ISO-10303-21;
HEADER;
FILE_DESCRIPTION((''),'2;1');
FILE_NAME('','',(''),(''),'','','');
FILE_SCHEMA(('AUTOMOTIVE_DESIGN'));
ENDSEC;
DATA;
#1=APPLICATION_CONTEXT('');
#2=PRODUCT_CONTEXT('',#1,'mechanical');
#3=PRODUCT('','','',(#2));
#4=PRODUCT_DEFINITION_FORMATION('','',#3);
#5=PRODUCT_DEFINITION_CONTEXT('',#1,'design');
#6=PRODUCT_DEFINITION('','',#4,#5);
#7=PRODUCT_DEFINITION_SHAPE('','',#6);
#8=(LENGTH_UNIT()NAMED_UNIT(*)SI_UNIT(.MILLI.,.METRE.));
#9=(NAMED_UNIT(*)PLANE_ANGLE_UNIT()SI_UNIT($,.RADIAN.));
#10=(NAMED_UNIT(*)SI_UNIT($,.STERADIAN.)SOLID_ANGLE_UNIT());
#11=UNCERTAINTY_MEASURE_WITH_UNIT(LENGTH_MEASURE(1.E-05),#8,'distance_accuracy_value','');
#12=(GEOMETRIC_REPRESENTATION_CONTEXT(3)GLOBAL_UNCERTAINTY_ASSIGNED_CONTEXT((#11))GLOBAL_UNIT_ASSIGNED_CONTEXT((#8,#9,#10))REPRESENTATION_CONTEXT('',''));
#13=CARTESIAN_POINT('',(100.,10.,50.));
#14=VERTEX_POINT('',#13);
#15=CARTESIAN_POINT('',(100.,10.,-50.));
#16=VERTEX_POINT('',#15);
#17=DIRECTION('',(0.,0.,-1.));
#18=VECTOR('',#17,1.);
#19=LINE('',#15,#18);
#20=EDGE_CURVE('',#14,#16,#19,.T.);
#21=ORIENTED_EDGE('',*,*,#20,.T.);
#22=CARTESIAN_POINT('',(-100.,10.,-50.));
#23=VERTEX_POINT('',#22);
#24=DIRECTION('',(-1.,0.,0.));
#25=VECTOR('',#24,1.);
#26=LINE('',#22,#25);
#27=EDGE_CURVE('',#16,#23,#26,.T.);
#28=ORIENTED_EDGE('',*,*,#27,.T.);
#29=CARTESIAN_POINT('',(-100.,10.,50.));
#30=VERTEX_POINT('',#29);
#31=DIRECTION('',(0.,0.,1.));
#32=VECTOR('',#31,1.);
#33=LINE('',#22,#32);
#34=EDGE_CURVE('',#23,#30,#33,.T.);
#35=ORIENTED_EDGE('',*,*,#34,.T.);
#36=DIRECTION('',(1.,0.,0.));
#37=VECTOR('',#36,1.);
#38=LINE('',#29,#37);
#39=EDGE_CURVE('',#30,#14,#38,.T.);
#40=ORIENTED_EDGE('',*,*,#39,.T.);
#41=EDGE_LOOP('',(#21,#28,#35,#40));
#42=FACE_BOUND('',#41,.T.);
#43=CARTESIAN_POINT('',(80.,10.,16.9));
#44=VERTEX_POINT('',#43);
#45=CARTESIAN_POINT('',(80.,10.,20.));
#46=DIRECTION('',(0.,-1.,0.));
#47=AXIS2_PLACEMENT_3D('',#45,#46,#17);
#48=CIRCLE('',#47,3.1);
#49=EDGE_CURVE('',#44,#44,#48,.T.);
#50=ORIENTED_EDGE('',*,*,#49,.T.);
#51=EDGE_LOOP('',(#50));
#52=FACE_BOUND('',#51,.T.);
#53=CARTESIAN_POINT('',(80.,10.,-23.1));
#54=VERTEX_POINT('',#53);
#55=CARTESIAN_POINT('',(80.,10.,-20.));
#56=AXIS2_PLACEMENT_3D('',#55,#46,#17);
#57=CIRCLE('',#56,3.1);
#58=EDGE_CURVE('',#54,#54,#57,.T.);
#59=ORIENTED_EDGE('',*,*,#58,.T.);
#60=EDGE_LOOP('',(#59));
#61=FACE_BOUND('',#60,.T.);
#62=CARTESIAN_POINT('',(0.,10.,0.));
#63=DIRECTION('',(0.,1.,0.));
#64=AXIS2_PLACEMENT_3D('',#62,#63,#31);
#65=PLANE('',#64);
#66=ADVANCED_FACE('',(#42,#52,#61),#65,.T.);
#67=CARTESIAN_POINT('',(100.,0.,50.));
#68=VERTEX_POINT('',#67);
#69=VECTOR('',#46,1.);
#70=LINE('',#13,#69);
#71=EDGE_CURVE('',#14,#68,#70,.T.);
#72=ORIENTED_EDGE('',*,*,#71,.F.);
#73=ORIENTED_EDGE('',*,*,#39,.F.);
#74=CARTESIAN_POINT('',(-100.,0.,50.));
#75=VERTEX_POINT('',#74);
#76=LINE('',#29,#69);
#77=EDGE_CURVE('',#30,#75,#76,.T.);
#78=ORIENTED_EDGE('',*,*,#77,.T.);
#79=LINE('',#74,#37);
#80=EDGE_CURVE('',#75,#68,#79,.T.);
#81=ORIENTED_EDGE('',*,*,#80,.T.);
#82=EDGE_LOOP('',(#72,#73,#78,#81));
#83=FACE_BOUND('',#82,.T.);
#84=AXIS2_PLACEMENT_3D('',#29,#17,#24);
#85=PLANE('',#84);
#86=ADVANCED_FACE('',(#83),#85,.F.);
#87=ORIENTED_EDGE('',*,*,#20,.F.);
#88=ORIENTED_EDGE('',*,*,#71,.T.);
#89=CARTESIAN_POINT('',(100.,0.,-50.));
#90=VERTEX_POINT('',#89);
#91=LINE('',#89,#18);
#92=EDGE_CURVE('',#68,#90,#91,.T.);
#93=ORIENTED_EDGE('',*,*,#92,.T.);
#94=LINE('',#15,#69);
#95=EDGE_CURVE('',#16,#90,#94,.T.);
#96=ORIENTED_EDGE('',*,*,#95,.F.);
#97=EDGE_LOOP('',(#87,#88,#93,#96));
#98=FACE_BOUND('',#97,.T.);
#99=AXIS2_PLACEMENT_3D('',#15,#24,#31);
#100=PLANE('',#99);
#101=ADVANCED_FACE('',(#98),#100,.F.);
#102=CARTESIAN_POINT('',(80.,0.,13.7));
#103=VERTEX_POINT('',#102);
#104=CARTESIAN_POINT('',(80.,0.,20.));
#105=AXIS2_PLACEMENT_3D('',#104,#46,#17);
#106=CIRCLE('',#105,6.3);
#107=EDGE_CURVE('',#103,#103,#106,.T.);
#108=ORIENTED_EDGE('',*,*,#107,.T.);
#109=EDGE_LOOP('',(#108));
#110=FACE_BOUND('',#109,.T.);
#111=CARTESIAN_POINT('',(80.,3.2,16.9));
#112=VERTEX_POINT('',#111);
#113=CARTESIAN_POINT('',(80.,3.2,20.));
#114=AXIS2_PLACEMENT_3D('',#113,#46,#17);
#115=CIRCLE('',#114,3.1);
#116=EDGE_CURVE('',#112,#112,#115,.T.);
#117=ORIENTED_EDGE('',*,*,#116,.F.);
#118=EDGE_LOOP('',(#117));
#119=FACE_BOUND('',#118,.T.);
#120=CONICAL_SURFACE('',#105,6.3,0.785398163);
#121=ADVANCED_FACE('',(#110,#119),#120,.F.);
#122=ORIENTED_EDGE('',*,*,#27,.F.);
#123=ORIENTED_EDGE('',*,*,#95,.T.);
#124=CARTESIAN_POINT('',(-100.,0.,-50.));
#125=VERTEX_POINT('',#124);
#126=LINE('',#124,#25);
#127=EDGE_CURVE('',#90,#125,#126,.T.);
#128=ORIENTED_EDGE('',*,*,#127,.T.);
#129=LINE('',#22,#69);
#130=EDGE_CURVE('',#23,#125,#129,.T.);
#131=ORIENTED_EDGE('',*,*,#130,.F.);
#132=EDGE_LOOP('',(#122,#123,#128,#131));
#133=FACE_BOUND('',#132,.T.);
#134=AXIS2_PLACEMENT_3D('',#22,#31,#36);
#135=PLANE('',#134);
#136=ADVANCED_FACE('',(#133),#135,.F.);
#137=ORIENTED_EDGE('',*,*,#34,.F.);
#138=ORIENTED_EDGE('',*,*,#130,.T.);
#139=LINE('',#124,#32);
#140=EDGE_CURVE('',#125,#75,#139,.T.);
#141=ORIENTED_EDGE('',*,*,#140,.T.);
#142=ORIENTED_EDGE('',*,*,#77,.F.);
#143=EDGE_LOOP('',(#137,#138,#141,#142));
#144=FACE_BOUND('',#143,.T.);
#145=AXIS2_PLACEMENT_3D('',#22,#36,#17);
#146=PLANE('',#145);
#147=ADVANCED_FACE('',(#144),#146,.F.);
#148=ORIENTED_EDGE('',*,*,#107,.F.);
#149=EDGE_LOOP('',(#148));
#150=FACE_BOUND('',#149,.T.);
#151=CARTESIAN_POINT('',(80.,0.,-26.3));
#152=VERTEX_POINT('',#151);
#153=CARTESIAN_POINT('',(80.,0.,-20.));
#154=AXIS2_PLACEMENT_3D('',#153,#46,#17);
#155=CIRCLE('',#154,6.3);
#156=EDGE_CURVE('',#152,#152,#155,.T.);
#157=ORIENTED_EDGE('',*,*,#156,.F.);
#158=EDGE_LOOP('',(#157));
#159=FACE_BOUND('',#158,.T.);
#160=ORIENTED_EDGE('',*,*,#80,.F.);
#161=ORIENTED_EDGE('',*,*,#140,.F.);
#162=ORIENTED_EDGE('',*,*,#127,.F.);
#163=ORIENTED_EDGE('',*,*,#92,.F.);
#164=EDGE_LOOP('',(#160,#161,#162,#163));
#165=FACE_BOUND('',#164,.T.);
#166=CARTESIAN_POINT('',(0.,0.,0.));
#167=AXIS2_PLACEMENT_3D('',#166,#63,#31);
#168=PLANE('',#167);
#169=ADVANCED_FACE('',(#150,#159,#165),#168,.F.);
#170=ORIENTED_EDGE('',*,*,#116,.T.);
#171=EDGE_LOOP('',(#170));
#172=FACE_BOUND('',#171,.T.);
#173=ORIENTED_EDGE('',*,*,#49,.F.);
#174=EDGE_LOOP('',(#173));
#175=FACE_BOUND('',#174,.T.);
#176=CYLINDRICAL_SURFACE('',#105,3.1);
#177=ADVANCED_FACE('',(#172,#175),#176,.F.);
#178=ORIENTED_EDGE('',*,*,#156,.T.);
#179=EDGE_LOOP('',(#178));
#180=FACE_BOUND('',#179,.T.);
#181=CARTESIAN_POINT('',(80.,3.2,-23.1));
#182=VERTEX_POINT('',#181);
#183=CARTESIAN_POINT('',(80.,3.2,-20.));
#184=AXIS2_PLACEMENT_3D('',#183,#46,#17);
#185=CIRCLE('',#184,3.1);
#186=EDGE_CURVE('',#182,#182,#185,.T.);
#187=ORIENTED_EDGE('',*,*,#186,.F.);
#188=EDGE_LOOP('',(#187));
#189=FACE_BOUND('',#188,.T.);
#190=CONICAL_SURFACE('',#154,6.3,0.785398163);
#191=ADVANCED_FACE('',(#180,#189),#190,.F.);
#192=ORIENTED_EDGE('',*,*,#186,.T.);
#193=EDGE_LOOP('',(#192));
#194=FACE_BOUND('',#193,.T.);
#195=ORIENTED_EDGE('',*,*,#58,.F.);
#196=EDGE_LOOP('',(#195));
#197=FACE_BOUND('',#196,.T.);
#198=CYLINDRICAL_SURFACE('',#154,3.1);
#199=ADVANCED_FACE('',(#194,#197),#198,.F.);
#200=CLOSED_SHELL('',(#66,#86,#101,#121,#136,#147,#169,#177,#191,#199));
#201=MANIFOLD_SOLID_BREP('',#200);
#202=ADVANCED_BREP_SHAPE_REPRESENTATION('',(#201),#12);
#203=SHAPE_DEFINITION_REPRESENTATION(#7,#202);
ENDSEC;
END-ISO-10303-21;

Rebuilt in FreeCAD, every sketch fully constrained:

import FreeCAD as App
import Part
import Sketcher

V = App.Vector
Q = App.Units.Quantity


def add_polygon(sketch, points):
    """Adds a closed chain of lines whose ends are joined by coincident constraints."""
    first, n = sketch.GeometryCount, len(points)
    for a, b in zip(points, points[1:] + points[:1]):
        sketch.addGeometry(Part.LineSegment(App.Vector(*a, 0), App.Vector(*b, 0)), False)
    for i in range(n):
        sketch.addConstraint(Sketcher.Constraint("Coincident", first + i, 2, first + (i + 1) % n, 1))

doc = App.newDocument("Part")
body = doc.addObject("PartDesign::Body", "Body")

sketch1 = doc.addObject("Sketcher::SketchObject", "Sketch")
body.addObject(sketch1)
sketch1.AttachmentSupport = (doc.XZ_Plane, [""])
sketch1.MapMode = "FlatFace"
add_polygon(sketch1, [(-100, -50), (-100, 50), (100, 50), (100, -50)])
sketch1.addConstraint([
    Sketcher.Constraint("Vertical", 0),
    Sketcher.Constraint("Horizontal", 1),
    Sketcher.Constraint("Vertical", 2),
    Sketcher.Constraint("Horizontal", 3),
    Sketcher.Constraint("Symmetric", 0, 2, 2, 2, -1, 1),
    Sketcher.Constraint("DistanceX", 1, 1, 1, 2, Q("200 mm")),
    Sketcher.Constraint("DistanceY", 0, 1, 0, 2, Q("100 mm")),
])
pad1 = doc.addObject("PartDesign::Pad", "Pad")
body.addObject(pad1)
pad1.Profile = sketch1
pad1.Length = 10
pad1.Reversed = True

sketch2 = doc.addObject("Sketcher::SketchObject", "Sketch001")
body.addObject(sketch2)
sketch2.AttachmentSupport = (doc.XZ_Plane, [""])
sketch2.MapMode = "FlatFace"
sketch2.addGeometry([
    Part.Circle(V(80, -20, 0), V(0, 0, 1), 3.1),
    Part.Circle(V(80, 20, 0), V(0, 0, 1), 3.1),
], False)
sketch2.addConstraint([
    Sketcher.Constraint("Equal", 0, 1),
    Sketcher.Constraint("Symmetric", 0, 3, 1, 3, -1),
    Sketcher.Constraint("Diameter", 0, Q("6.2 mm")),
    Sketcher.Constraint("DistanceX", -1, 1, 0, 3, Q("80 mm")),
    Sketcher.Constraint("DistanceY", 0, 3, -1, 1, Q("20 mm")),
])
doc.recompute()
hole = doc.addObject("PartDesign::Hole", "Hole")
body.addObject(hole)
hole.Profile = sketch2
hole.ThreadType = "None"
hole.Diameter = 6.2
hole.DepthType = "ThroughAll"
hole.HoleCutType = "Countersink"
hole.HoleCutDiameter = 12.6
hole.HoleCutCountersinkAngle = 90

doc.recompute()
